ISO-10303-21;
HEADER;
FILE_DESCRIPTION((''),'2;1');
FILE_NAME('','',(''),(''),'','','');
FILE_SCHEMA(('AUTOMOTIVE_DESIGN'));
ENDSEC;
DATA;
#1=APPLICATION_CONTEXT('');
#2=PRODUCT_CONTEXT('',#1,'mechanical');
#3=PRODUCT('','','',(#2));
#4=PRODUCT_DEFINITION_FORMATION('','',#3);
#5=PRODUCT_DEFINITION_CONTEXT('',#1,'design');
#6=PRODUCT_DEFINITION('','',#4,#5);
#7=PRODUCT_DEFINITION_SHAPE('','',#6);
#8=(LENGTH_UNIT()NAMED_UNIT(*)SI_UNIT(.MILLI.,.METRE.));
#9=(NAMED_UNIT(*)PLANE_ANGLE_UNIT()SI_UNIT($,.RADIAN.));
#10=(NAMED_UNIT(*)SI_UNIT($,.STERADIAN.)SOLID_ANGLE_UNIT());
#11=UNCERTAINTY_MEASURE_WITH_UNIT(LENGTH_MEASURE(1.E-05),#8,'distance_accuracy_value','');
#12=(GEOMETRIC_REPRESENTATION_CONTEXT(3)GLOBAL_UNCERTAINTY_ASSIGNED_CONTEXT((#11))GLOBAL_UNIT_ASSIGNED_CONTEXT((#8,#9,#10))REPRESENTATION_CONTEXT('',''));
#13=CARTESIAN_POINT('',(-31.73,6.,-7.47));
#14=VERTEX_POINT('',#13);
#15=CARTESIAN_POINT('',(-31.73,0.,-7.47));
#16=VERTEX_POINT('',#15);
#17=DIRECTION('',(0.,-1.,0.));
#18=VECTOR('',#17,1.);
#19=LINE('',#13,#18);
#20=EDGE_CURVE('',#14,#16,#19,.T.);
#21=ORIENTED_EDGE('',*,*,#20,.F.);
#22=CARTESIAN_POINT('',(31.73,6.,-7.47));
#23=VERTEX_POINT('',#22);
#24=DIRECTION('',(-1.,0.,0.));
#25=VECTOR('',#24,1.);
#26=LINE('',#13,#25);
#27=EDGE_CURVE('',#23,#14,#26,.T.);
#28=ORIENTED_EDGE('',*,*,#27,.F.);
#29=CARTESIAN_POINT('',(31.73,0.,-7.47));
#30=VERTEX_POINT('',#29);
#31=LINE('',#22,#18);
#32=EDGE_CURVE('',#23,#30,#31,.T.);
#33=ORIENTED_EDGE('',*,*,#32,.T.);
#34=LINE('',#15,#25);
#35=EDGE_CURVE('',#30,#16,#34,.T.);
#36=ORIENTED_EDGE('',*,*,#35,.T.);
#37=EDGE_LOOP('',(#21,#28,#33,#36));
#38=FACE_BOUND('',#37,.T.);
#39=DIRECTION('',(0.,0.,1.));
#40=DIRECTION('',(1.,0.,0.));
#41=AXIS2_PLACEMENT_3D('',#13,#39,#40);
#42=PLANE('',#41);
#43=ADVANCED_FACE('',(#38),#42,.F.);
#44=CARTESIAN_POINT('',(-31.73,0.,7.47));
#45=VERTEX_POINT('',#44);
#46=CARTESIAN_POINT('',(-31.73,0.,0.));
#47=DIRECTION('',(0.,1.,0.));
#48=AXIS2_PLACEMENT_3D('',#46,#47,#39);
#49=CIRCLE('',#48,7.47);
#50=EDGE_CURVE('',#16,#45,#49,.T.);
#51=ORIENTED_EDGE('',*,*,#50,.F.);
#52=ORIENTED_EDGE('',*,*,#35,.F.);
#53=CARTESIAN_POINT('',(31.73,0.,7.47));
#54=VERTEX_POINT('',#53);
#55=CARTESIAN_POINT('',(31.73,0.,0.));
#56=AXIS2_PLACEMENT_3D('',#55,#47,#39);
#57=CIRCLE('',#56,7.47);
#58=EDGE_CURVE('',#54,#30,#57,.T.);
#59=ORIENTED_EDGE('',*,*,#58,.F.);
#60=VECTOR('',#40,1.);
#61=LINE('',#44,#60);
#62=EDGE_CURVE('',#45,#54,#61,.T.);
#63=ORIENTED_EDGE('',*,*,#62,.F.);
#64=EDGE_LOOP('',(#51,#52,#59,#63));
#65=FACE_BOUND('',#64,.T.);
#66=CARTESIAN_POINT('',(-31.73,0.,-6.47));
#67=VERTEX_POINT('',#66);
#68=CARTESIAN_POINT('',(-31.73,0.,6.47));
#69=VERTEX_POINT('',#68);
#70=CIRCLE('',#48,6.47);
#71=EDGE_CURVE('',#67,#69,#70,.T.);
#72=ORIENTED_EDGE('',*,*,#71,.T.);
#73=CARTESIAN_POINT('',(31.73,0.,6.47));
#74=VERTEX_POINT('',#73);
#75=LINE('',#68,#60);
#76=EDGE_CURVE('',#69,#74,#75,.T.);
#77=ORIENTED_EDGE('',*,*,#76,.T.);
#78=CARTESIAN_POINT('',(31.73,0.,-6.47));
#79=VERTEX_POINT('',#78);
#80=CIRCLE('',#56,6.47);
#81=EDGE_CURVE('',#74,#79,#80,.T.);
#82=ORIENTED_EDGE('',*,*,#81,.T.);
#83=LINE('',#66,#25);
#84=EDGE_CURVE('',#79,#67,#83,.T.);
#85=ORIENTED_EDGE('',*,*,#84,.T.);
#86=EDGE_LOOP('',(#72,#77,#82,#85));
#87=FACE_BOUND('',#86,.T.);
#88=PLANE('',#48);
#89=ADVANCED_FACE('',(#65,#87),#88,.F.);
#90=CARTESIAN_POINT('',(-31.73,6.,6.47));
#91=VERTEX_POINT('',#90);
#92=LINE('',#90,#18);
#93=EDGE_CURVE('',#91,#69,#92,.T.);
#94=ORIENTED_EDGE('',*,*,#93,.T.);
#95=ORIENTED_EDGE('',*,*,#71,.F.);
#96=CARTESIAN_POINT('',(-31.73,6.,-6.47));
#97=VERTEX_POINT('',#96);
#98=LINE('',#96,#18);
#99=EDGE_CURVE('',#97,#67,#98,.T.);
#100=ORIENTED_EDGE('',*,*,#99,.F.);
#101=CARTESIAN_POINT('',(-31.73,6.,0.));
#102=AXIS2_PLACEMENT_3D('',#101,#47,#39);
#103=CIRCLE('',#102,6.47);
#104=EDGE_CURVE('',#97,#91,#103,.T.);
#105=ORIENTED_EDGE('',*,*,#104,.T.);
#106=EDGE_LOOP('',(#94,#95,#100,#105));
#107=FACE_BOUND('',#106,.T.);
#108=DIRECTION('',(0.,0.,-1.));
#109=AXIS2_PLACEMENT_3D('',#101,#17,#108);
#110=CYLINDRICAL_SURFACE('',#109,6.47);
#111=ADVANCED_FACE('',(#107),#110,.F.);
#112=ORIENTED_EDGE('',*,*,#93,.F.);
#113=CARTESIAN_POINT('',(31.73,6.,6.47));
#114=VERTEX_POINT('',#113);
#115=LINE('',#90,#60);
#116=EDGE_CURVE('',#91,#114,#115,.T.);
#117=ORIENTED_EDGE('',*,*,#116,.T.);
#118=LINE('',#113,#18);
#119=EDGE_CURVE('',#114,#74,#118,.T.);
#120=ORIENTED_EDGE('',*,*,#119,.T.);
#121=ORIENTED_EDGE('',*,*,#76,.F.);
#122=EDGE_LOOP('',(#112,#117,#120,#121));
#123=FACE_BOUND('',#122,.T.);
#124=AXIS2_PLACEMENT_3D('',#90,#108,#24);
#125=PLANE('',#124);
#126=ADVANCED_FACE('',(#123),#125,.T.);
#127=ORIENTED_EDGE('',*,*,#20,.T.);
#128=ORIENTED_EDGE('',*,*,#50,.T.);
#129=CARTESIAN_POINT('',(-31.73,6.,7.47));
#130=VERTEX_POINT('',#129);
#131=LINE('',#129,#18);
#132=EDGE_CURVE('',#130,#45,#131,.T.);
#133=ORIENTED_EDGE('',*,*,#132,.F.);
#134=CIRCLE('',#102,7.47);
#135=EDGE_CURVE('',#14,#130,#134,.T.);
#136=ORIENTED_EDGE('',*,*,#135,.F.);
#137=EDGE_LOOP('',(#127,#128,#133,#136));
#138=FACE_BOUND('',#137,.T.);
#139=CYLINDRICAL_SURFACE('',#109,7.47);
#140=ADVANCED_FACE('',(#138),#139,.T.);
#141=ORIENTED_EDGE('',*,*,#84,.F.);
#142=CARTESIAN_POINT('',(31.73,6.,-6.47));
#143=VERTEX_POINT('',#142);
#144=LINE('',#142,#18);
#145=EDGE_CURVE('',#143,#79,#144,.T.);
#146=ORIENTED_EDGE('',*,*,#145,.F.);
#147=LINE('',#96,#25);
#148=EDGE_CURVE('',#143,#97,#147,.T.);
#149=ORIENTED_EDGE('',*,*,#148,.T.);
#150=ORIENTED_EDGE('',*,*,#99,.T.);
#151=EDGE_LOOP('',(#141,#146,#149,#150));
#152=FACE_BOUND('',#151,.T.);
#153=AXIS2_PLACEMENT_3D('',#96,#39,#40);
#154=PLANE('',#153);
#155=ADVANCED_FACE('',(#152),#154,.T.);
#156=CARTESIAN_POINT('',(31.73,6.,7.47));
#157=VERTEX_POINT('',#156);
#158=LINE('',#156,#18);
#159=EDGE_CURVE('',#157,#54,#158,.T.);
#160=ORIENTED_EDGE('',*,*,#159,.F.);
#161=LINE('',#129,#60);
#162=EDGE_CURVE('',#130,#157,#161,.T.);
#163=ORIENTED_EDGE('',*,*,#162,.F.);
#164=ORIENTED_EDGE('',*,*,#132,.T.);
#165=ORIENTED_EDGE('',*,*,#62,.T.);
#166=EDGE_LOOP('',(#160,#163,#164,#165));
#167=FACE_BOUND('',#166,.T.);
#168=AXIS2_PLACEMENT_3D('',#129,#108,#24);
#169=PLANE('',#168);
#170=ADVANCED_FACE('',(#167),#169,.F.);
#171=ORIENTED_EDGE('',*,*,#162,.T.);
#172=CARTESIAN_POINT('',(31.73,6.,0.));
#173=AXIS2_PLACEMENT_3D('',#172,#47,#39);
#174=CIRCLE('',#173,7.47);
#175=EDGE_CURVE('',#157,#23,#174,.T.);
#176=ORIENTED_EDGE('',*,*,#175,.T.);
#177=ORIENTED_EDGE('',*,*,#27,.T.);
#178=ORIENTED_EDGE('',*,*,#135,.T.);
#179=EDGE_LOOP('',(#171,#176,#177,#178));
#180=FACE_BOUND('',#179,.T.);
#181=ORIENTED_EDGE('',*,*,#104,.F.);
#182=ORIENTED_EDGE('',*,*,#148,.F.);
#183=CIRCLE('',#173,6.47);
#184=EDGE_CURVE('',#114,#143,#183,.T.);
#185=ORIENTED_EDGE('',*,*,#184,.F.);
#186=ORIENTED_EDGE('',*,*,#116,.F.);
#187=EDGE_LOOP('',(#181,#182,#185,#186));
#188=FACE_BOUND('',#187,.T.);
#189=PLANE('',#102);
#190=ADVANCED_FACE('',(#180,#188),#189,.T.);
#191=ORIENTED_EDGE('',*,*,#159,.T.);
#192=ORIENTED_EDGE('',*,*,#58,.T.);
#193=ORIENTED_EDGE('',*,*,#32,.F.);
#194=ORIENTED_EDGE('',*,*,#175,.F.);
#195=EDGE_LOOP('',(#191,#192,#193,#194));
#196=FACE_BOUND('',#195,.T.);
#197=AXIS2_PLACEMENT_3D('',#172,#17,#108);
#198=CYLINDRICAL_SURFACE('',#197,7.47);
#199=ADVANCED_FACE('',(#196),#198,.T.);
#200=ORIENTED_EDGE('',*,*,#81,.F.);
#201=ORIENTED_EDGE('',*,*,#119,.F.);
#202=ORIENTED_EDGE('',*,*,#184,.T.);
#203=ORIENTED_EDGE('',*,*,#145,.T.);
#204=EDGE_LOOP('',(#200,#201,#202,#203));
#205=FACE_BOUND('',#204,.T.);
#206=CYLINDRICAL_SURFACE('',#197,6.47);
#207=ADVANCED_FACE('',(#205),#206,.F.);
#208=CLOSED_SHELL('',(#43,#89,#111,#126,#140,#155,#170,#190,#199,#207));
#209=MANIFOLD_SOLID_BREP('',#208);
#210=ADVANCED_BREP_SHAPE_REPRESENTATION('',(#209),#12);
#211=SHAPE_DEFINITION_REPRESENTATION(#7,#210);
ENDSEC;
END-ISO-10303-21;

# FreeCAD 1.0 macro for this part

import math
import FreeCAD as App
import Part
import Sketcher
from FreeCAD import Vector

doc = App.newDocument("Part")
body = doc.addObject("PartDesign::Body", "Body")

sketch1 = doc.addObject("Sketcher::SketchObject", "Sketch")
body.addObject(sketch1)
sketch1.AttachmentSupport = (doc.XZ_Plane, [""])
sketch1.MapMode = "FlatFace"
sketch1.addGeometry([
    Part.LineSegment(Vector(32, -7, 0), Vector(-32, -7, 0)),
    Part.ArcOfCircle(Part.Circle(Vector(-32, 0, 0), Vector(0, 0, 1), 7), math.radians(90), math.radians(270)),
    Part.LineSegment(Vector(-32, 7, 0), Vector(32, 7, 0)),
    Part.ArcOfCircle(Part.Circle(Vector(32, 0, 0), Vector(0, 0, 1), 7), math.radians(-90), math.radians(90)),
    Part.LineSegment(Vector(-32, -6, 0), Vector(32, -6, 0)),
    Part.ArcOfCircle(Part.Circle(Vector(32, 0, 0), Vector(0, 0, 1), 6), math.radians(-90), math.radians(90)),
    Part.LineSegment(Vector(32, 6, 0), Vector(-32, 6, 0)),
    Part.ArcOfCircle(Part.Circle(Vector(-32, 0, 0), Vector(0, 0, 1), 6), math.radians(90), math.radians(270)),
], False)
sketch1.addConstraint([
    Sketcher.Constraint("Tangent", 0, 2, 1, 2),
    Sketcher.Constraint("Tangent", 1, 1, 2, 1),
    Sketcher.Constraint("Tangent", 2, 2, 3, 2),
    Sketcher.Constraint("Tangent", 3, 1, 0, 1),
    Sketcher.Constraint("Tangent", 4, 2, 5, 1),
    Sketcher.Constraint("Tangent", 5, 2, 6, 1),
    Sketcher.Constraint("Tangent", 6, 2, 7, 1),
    Sketcher.Constraint("Tangent", 7, 2, 4, 1),
    Sketcher.Constraint("Horizontal", 0),
    Sketcher.Constraint("Horizontal", 2),
    Sketcher.Constraint("Horizontal", 4),
    Sketcher.Constraint("Horizontal", 6),
    Sketcher.Constraint("Coincident", 5, 3, 3, 3),
    Sketcher.Constraint("Symmetric", 1, 3, 3, 3, -1, 1),
    Sketcher.Constraint("Vertical", 7, 3, 0, 2),
    Sketcher.Constraint("Radius", 1, 7.47),
    Sketcher.Constraint("Radius", 5, 6.47),
    Sketcher.Constraint("DistanceX", 0, 2, 0, 1, 63.46),
])
pad1 = doc.addObject("PartDesign::Pad", "Pad")
body.addObject(pad1)
pad1.Profile = sketch1
pad1.Length = 6
pad1.Reversed = True

doc.recompute()
